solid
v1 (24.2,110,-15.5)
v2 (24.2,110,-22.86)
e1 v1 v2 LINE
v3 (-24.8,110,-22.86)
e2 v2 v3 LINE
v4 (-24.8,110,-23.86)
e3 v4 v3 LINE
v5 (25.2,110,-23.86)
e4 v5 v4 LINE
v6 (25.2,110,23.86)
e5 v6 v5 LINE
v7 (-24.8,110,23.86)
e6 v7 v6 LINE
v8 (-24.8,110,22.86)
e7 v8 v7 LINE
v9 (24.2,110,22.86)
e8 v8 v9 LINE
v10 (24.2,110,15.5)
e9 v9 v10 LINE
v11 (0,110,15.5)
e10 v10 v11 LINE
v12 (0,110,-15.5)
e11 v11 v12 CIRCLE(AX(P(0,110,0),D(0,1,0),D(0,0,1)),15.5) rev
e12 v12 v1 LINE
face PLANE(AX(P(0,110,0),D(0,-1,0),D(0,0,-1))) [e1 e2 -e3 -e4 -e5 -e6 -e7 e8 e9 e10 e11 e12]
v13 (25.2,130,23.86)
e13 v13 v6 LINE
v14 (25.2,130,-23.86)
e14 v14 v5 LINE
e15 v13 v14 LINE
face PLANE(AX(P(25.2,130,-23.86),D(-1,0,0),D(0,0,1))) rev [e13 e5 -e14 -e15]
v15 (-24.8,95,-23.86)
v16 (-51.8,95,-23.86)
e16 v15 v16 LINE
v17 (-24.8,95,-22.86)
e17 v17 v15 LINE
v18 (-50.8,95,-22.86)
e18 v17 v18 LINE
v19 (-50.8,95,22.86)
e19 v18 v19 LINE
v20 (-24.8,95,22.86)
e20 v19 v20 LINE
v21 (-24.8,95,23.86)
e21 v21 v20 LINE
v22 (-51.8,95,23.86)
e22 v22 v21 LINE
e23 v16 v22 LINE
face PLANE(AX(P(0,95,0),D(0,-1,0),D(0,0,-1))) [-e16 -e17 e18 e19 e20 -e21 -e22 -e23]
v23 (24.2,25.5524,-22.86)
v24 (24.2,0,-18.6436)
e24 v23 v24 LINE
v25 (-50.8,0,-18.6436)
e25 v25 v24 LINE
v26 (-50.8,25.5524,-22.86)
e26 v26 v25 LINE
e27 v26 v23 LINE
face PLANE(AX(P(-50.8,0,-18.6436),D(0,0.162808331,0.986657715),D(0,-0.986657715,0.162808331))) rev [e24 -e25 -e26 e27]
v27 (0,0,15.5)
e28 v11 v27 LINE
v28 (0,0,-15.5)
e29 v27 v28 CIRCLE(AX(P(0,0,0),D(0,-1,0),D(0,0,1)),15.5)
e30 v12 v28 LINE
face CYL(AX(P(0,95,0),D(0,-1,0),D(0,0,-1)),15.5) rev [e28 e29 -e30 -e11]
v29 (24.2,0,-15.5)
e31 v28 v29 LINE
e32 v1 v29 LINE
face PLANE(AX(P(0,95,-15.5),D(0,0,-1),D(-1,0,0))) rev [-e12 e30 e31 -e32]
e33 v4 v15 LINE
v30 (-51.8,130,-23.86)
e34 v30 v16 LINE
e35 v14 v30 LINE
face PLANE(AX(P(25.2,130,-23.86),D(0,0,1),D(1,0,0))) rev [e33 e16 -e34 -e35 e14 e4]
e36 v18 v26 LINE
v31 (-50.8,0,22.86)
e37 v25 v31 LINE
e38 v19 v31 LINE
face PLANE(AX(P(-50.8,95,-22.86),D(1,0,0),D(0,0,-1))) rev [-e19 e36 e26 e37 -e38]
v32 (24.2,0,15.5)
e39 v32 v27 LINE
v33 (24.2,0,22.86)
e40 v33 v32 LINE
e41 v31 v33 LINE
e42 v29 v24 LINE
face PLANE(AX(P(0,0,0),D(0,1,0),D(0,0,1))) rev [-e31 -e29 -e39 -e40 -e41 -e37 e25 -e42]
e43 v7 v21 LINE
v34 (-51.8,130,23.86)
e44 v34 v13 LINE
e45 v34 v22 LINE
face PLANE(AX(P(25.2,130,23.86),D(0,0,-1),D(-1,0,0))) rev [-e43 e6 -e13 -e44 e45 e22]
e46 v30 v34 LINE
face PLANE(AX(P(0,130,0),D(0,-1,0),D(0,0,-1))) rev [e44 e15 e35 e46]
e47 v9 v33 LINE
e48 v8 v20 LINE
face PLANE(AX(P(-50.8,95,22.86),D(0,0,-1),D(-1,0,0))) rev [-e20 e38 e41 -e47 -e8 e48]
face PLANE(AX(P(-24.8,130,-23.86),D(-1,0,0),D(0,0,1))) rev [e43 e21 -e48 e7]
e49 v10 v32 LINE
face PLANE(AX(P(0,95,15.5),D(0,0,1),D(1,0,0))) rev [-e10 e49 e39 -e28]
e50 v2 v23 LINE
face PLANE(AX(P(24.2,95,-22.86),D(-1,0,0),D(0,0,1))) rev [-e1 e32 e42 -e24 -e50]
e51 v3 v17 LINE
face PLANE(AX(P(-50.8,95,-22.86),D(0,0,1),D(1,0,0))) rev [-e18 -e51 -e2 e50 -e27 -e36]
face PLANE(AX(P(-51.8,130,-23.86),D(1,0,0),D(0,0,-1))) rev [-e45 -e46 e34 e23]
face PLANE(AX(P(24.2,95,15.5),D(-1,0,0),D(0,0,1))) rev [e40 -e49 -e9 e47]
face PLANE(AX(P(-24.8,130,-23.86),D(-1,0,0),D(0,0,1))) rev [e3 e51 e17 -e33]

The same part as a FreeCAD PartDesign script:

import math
import FreeCAD as App
import Part
import Sketcher
from FreeCAD import Vector
Q = App.Units.Quantity


def add_polygon(sketch, points):
    """Adds a closed chain of lines whose ends are joined by coincident constraints."""
    first, n = sketch.GeometryCount, len(points)
    for a, b in zip(points, points[1:] + points[:1]):
        sketch.addGeometry(Part.LineSegment(App.Vector(*a, 0), App.Vector(*b, 0)), False)
    for i in range(n):
        sketch.addConstraint(Sketcher.Constraint("Coincident", first + i, 2, first + (i + 1) % n, 1))

doc = App.newDocument("Part")
params = doc.addObject("Spreadsheet::Sheet", "Params")
for row, (alias, value) in enumerate([
    ("sketch1_radius", "15.5 mm"),
    ("sketch1_width", "75 mm"),
    ("sketch1_width2", "24.2 mm"),
    ("sketch1_height", "45.72 mm"),
    ("pad1_length", "95 mm"),
    ("sketch3_radius", "15.5 mm"),
    ("sketch3_width", "49 mm"),
    ("sketch3_width2", "24.2 mm"),
    ("sketch3_height", "7.36 mm"),
    ("pad2_length", "15 mm"),
    ("sketch4_width", "50 mm"),
    ("sketch4_height", "47.72 mm"),
    ("pad3_length", "20 mm"),
    ("sketch5_width", "27 mm"),
    ("sketch5_height", "47.72 mm"),
    ("pad4_length", "35 mm"),
], start=1):
    params.set(f"A{row}", alias)
    params.set(f"B{row}", "=" + value)
    params.setAlias(f"B{row}", alias)

body = doc.addObject("PartDesign::Body", "Body")

# Sketch on XZ plane
sketch1 = doc.addObject("Sketcher::SketchObject", "Sketch")
body.addObject(sketch1)
sketch1.AttachmentSupport = (doc.XZ_Plane, [""])
sketch1.MapMode = "FlatFace"
sketch1.addGeometry([
    Part.LineSegment(Vector(24, -23, 0), Vector(-51, -23, 0)),  # 0
    Part.LineSegment(Vector(-51, -23, 0), Vector(-51, 23, 0)),  # 1
    Part.LineSegment(Vector(-51, 23, 0), Vector(24, 23, 0)),  # 2
    Part.LineSegment(Vector(24, 23, 0), Vector(24, 16, 0)),  # 3
    Part.LineSegment(Vector(24, 16, 0), Vector(0, 16, 0)),  # 4
    Part.ArcOfCircle(Part.Circle(Vector(0, 0, 0), Vector(0, 0, 1), 16), math.radians(90), math.radians(270)),  # 5
    Part.LineSegment(Vector(0, -16, 0), Vector(24, -16, 0)),  # 6
    Part.LineSegment(Vector(24, -16, 0), Vector(24, -23, 0)),  # 7
], False)
sketch1.addConstraint([
    Sketcher.Constraint("Coincident", 0, 2, 1, 1),
    Sketcher.Constraint("Coincident", 1, 2, 2, 1),
    Sketcher.Constraint("Coincident", 2, 2, 3, 1),
    Sketcher.Constraint("Coincident", 3, 2, 4, 1),
    Sketcher.Constraint("Tangent", 4, 2, 5, 1),
    Sketcher.Constraint("Tangent", 5, 2, 6, 1),
    Sketcher.Constraint("Coincident", 6, 2, 7, 1),
    Sketcher.Constraint("Coincident", 7, 2, 0, 1),
    Sketcher.Constraint("Horizontal", 0),
    Sketcher.Constraint("Vertical", 1),
    Sketcher.Constraint("Horizontal", 2),
    Sketcher.Constraint("Vertical", 3),
    Sketcher.Constraint("Horizontal", 4),
    Sketcher.Constraint("Horizontal", 6),
    Sketcher.Constraint("Vertical", 7),
    Sketcher.Constraint("Coincident", 5, 3, -1, 1),
    Sketcher.Constraint("Symmetric", 2, 2, 7, 2, -1),
    Sketcher.Constraint("Radius", 5, Q("15.5 mm")),
    Sketcher.Constraint("DistanceX", 0, 2, 0, 1, Q("75 mm")),
    Sketcher.Constraint("DistanceX", 4, 2, 4, 1, Q("24.2 mm")),
    Sketcher.Constraint("DistanceY", 1, 1, 1, 2, Q("45.72 mm")),
])
sketch1.setExpression("Constraints[17]", "Params.sketch1_radius")
sketch1.setExpression("Constraints[18]", "Params.sketch1_width")
sketch1.setExpression("Constraints[19]", "Params.sketch1_width2")
sketch1.setExpression("Constraints[20]", "Params.sketch1_height")
pad1 = doc.addObject("PartDesign::Pad", "Pad")
body.addObject(pad1)
pad1.Profile = sketch1
pad1.setExpression("Length", "Params.pad1_length")
pad1.Reversed = True

# Sketch on YZ plane
sketch2 = doc.addObject("Sketcher::SketchObject", "Sketch001")
body.addObject(sketch2)
sketch2.AttachmentSupport = (doc.YZ_Plane, [""])
sketch2.MapMode = "FlatFace"
sketch2.AttachmentOffset = App.Placement(Vector(0, 0, 24.2), App.Rotation())
add_polygon(sketch2, [(0, -18.6), (0, -22.9), (25.6, -22.9)])  # lines 0-2
sketch2.addConstraint([
    Sketcher.Constraint("Vertical", 0),
    Sketcher.Constraint("Horizontal", 1),
    Sketcher.Constraint("PointOnObject", 0, 2, -2),
    Sketcher.Constraint("DistanceY", 0, 2, -1, 1, Q("22.86 mm")),
    Sketcher.Constraint("DistanceX", 1, 1, 1, 2, Q("25.5524 mm")),
    Sketcher.Constraint("DistanceY", 0, 2, 0, 1, Q("4.2164 mm")),
])
pocket1 = doc.addObject("PartDesign::Pocket", "Pocket")
body.addObject(pocket1)
pocket1.Profile = sketch2
pocket1.Type = "ThroughAll"

# Sketch on XZ plane
sketch3 = doc.addObject("Sketcher::SketchObject", "Sketch002")
body.addObject(sketch3)
sketch3.AttachmentSupport = (doc.XZ_Plane, [""])
sketch3.MapMode = "FlatFace"
sketch3.AttachmentOffset = App.Placement(Vector(0, 0, -95), App.Rotation())
sketch3.addGeometry([
    Part.LineSegment(Vector(24, -16, 0), Vector(24, -23, 0)),  # 0
    Part.LineSegment(Vector(24, -23, 0), Vector(-25, -23, 0)),  # 1
    Part.LineSegment(Vector(-25, -23, 0), Vector(-25, 23, 0)),  # 2
    Part.LineSegment(Vector(-25, 23, 0), Vector(24, 23, 0)),  # 3
    Part.LineSegment(Vector(24, 23, 0), Vector(24, 16, 0)),  # 4
    Part.LineSegment(Vector(24, 16, 0), Vector(0, 16, 0)),  # 5
    Part.ArcOfCircle(Part.Circle(Vector(0, 0, 0), Vector(0, 0, 1), 16), math.radians(90), math.radians(270)),  # 6
    Part.LineSegment(Vector(0, -16, 0), Vector(24, -16, 0)),  # 7
], False)
sketch3.addConstraint([
    Sketcher.Constraint("Coincident", 0, 2, 1, 1),
    Sketcher.Constraint("Coincident", 1, 2, 2, 1),
    Sketcher.Constraint("Coincident", 2, 2, 3, 1),
    Sketcher.Constraint("Coincident", 3, 2, 4, 1),
    Sketcher.Constraint("Coincident", 4, 2, 5, 1),
    Sketcher.Constraint("Tangent", 5, 2, 6, 1),
    Sketcher.Constraint("Tangent", 6, 2, 7, 1),
    Sketcher.Constraint("Coincident", 7, 2, 0, 1),
    Sketcher.Constraint("Vertical", 0),
    Sketcher.Constraint("Horizontal", 1),
    Sketcher.Constraint("Vertical", 2),
    Sketcher.Constraint("Horizontal", 3),
    Sketcher.Constraint("Vertical", 4),
    Sketcher.Constraint("Horizontal", 5),
    Sketcher.Constraint("Horizontal", 7),
    Sketcher.Constraint("Coincident", 6, 3, -1, 1),
    Sketcher.Constraint("Symmetric", 0, 2, 3, 2, -1),
    Sketcher.Constraint("Radius", 6, Q("15.5 mm")),
    Sketcher.Constraint("DistanceX", 1, 2, 1, 1, Q("49 mm")),
    Sketcher.Constraint("DistanceX", 5, 2, 5, 1, Q("24.2 mm")),
    Sketcher.Constraint("DistanceY", 0, 2, 0, 1, Q("7.36 mm")),
])
sketch3.setExpression("Constraints[17]", "Params.sketch3_radius")
sketch3.setExpression("Constraints[18]", "Params.sketch3_width")
sketch3.setExpression("Constraints[19]", "Params.sketch3_width2")
sketch3.setExpression("Constraints[20]", "Params.sketch3_height")
pad2 = doc.addObject("PartDesign::Pad", "Pad001")
body.addObject(pad2)
pad2.Profile = sketch3
pad2.setExpression("Length", "Params.pad2_length")
pad2.Reversed = True

# Sketch on XZ plane
sketch4 = doc.addObject("Sketcher::SketchObject", "Sketch003")
body.addObject(sketch4)
sketch4.AttachmentSupport = (doc.XZ_Plane, [""])
sketch4.MapMode = "FlatFace"
sketch4.AttachmentOffset = App.Placement(Vector(0, 0, -110), App.Rotation())
add_polygon(sketch4, [(-25, -24), (-25, 24), (25, 24), (25, -24)])  # lines 0-3
sketch4.addConstraint([
    Sketcher.Constraint("Vertical", 0),
    Sketcher.Constraint("Horizontal", 1),
    Sketcher.Constraint("Vertical", 2),
    Sketcher.Constraint("Horizontal", 3),
    Sketcher.Constraint("DistanceX", 1, 1, 1, 2, Q("50 mm")),
    Sketcher.Constraint("DistanceY", 0, 1, 0, 2, Q("47.72 mm")),
    Sketcher.Constraint("DistanceX", 0, 2, -1, 1, Q("24.8 mm")),
    Sketcher.Constraint("DistanceY", -1, 1, 0, 2, Q("23.86 mm")),
])
sketch4.setExpression("Constraints[8]", "Params.sketch4_width")
sketch4.setExpression("Constraints[9]", "Params.sketch4_height")
pad3 = doc.addObject("PartDesign::Pad", "Pad002")
body.addObject(pad3)
pad3.Profile = sketch4
pad3.setExpression("Length", "Params.pad3_length")
pad3.Reversed = True

# Sketch on XZ plane
sketch5 = doc.addObject("Sketcher::SketchObject", "Sketch004")
body.addObject(sketch5)
sketch5.AttachmentSupport = (doc.XZ_Plane, [""])
sketch5.MapMode = "FlatFace"
sketch5.AttachmentOffset = App.Placement(Vector(0, 0, -95), App.Rotation())
add_polygon(sketch5, [(-52, -24), (-52, 24), (-25, 24), (-25, -24)])  # lines 0-3
sketch5.addConstraint([
    Sketcher.Constraint("Vertical", 0),
    Sketcher.Constraint("Horizontal", 1),
    Sketcher.Constraint("Vertical", 2),
    Sketcher.Constraint("Horizontal", 3),
    Sketcher.Constraint("DistanceX", 1, 1, 1, 2, Q("27 mm")),
    Sketcher.Constraint("DistanceY", 0, 1, 0, 2, Q("47.72 mm")),
    Sketcher.Constraint("DistanceX", 0, 2, -1, 1, Q("51.8 mm")),
    Sketcher.Constraint("DistanceY", -1, 1, 0, 2, Q("23.86 mm")),
])
sketch5.setExpression("Constraints[8]", "Params.sketch5_width")
sketch5.setExpression("Constraints[9]", "Params.sketch5_height")
pad4 = doc.addObject("PartDesign::Pad", "Pad003")
body.addObject(pad4)
pad4.Profile = sketch5
pad4.setExpression("Length", "Params.pad4_length")
pad4.Reversed = True

doc.recompute()
